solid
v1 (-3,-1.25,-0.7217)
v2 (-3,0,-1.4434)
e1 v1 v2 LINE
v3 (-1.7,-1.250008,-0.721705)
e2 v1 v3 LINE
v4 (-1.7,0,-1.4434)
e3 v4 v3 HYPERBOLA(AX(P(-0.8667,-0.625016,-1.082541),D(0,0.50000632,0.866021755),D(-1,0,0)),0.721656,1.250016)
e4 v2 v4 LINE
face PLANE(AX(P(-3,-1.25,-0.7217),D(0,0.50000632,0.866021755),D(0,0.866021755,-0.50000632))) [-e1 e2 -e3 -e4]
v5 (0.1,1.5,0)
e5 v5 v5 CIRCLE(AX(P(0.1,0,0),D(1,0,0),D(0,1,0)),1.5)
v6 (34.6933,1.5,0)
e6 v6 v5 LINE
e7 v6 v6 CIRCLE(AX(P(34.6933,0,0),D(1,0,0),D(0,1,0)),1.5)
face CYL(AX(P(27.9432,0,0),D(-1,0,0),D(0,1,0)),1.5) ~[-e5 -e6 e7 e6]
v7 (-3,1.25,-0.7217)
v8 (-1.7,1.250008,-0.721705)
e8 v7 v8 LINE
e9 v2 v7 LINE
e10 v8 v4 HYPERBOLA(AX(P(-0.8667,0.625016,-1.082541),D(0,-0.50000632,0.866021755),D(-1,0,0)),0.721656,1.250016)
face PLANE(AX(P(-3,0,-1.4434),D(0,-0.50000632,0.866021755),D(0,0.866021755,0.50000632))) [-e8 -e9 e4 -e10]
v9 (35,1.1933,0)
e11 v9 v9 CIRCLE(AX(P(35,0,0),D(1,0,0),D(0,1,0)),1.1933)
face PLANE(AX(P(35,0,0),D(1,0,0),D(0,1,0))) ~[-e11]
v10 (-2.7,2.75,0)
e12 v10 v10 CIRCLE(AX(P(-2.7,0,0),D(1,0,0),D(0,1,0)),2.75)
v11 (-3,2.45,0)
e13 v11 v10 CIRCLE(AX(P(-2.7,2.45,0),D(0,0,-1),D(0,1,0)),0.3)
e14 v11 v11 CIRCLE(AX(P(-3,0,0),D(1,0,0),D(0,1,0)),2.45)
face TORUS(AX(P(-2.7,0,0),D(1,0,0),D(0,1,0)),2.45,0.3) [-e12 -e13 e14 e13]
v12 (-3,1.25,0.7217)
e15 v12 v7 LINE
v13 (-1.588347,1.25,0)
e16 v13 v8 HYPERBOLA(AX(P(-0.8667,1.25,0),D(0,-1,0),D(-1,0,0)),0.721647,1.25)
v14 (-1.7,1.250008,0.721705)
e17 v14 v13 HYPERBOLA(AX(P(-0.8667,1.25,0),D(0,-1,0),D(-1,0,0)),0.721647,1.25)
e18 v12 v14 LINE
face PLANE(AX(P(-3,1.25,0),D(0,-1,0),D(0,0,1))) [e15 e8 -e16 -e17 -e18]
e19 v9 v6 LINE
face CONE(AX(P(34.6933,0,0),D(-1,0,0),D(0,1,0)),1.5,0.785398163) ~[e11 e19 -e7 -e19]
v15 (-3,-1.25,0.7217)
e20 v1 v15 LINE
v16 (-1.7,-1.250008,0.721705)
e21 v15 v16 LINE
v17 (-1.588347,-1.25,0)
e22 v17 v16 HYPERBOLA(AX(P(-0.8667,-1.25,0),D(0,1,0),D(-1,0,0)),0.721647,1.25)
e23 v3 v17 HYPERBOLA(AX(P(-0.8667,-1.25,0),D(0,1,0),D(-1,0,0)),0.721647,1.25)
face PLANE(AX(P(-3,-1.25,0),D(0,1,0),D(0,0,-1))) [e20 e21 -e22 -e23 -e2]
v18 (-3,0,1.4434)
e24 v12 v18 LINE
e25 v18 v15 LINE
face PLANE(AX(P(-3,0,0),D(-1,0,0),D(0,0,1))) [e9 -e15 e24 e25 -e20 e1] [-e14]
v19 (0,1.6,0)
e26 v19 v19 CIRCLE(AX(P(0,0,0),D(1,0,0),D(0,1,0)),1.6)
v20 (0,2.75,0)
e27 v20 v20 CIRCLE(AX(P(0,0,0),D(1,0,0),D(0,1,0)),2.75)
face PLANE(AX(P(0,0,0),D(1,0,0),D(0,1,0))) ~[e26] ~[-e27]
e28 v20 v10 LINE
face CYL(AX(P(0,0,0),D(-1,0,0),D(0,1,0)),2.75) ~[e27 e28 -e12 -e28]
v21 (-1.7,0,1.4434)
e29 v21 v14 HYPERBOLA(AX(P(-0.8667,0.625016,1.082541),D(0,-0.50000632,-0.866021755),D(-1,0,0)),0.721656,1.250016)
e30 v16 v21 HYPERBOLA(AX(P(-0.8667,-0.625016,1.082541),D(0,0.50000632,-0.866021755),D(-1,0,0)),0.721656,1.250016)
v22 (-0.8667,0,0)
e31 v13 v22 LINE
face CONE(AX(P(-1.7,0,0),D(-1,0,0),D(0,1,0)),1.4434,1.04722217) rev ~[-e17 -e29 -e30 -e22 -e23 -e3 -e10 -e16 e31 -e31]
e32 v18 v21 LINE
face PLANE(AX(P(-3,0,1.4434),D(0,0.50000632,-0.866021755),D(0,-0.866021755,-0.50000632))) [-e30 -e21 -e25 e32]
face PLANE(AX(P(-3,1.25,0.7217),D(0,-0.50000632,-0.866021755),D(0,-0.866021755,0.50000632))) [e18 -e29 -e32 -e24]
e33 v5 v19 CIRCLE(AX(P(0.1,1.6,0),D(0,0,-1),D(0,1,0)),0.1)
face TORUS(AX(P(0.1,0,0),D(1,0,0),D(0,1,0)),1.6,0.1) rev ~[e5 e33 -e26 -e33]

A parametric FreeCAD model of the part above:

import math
import FreeCAD as App
import Part
import Sketcher
from FreeCAD import Vector
Q = App.Units.Quantity


def edges_at(feature, points):
    """Names of the edges that pass closest to the given points."""
    edges = feature.Shape.Edges
    near = lambda p: min(range(len(edges)), key=lambda i: edges[i].distToShape(Part.Vertex(*p))[0])
    return sorted({f"Edge{near(p) + 1}" for p in points})

doc = App.newDocument("Part")
body = doc.addObject("PartDesign::Body", "Body")

sketch1 = body.newObject("Sketcher::SketchObject", "Sketch")
sketch1.AttachmentSupport = (doc.getObject("XY_Plane"), [""])
sketch1.MapMode = "FlatFace"
sketch1.addGeometry([
    Part.LineSegment(Vector(-1.7, 1.4, 0), Vector(-0.9, 0, 0)),
    Part.LineSegment(Vector(-0.9, 0, 0), Vector(35, 0, 0)),
    Part.LineSegment(Vector(35, 0, 0), Vector(35, 1.5, 0)),
    Part.LineSegment(Vector(35, 1.5, 0), Vector(0, 1.5, 0)),
    Part.LineSegment(Vector(0, 1.5, 0), Vector(0, 2.8, 0)),
    Part.LineSegment(Vector(0, 2.8, 0), Vector(-3, 2.8, 0)),
    Part.LineSegment(Vector(-3, 2.8, 0), Vector(-3, 1.4, 0)),
    Part.LineSegment(Vector(-3, 1.4, 0), Vector(-1.7, 1.4, 0)),
], False)
sketch1.addConstraint([
    Sketcher.Constraint("Coincident", 0, 2, 1, 1),
    Sketcher.Constraint("Coincident", 1, 2, 2, 1),
    Sketcher.Constraint("Coincident", 2, 2, 3, 1),
    Sketcher.Constraint("Coincident", 3, 2, 4, 1),
    Sketcher.Constraint("Coincident", 4, 2, 5, 1),
    Sketcher.Constraint("Coincident", 5, 2, 6, 1),
    Sketcher.Constraint("Coincident", 6, 2, 7, 1),
    Sketcher.Constraint("Coincident", 7, 2, 0, 1),
    Sketcher.Constraint("Horizontal", 1),
    Sketcher.Constraint("Vertical", 2),
    Sketcher.Constraint("Horizontal", 3),
    Sketcher.Constraint("Vertical", 4),
    Sketcher.Constraint("Horizontal", 5),
    Sketcher.Constraint("Vertical", 6),
    Sketcher.Constraint("Horizontal", 7),
    Sketcher.Constraint("PointOnObject", 0, 2, -1),
    Sketcher.Constraint("PointOnObject", 3, 2, -2),
    Sketcher.Constraint("DistanceX", 3, 2, 3, 1, Q("35 mm")),
    Sketcher.Constraint("DistanceX", 5, 2, 5, 1, Q("3 mm")),
    Sketcher.Constraint("DistanceX", 7, 1, 7, 2, Q("1.3 mm")),
    Sketcher.Constraint("DistanceY", 2, 1, 2, 2, Q("1.5 mm")),
    Sketcher.Constraint("DistanceY", 4, 1, 4, 2, Q("1.25 mm")),
    Sketcher.Constraint("DistanceX", 1, 1, 1, 2, Q("35.8667 mm")),
    Sketcher.Constraint("DistanceY", 6, 2, 6, 1, Q("1.3066 mm")),
])
revolution = body.newObject("PartDesign::Revolution", "Revolution")
revolution.Profile = sketch1
revolution.ReferenceAxis = (sketch1, ["H_Axis"])
revolution.Angle = 360

sketch2 = body.newObject("Sketcher::SketchObject", "Sketch001")
sketch2.AttachmentSupport = (doc.getObject("YZ_Plane"), [""])
sketch2.MapMode = "FlatFace"
sketch2.AttachmentOffset = App.Placement(Vector(0, 0, -3), App.Rotation())
sketch2.addGeometry([
    Part.LineSegment(Vector(1.2, 0.7, 0), Vector(0, 1.4, 0)),
    Part.ArcOfCircle(Part.Circle(Vector(0, 0, 0), Vector(0, 0, 1), 1.4), math.radians(30), math.radians(90)),
    Part.ArcOfCircle(Part.Circle(Vector(0, 0, 0), Vector(0, 0, 1), 1.4), math.radians(90), math.radians(150)),
    Part.LineSegment(Vector(0, 1.4, 0), Vector(-1.2, 0.7, 0)),
    Part.ArcOfCircle(Part.Circle(Vector(0, 0, 0), Vector(0, 0, 1), 1.4), math.radians(-30), math.radians(30)),
    Part.LineSegment(Vector(1.2, 0.7, 0), Vector(1.2, -0.7, 0)),
    Part.LineSegment(Vector(-1.2, 0.7, 0), Vector(-1.2, -0.7, 0)),
    Part.ArcOfCircle(Part.Circle(Vector(0, 0, 0), Vector(0, 0, 1), 1.4), math.radians(150), math.radians(210)),
    Part.LineSegment(Vector(-1.2, -0.7, 0), Vector(0, -1.4, 0)),
    Part.ArcOfCircle(Part.Circle(Vector(0, 0, 0), Vector(0, 0, 1), 1.4), math.radians(-150), math.radians(-90)),
    Part.ArcOfCircle(Part.Circle(Vector(0, 0, 0), Vector(0, 0, 1), 1.4), math.radians(-90), math.radians(-30)),
    Part.LineSegment(Vector(0, -1.4, 0), Vector(1.2, -0.7, 0)),
], False)
sketch2.addConstraint([
    Sketcher.Constraint("Coincident", 0, 1, 1, 1),
    Sketcher.Constraint("Coincident", 1, 2, 0, 2),
    Sketcher.Constraint("Coincident", 2, 1, 3, 1),
    Sketcher.Constraint("Coincident", 3, 2, 2, 2),
    Sketcher.Constraint("Coincident", 4, 1, 5, 2),
    Sketcher.Constraint("Coincident", 5, 1, 4, 2),
    Sketcher.Constraint("Coincident", 6, 1, 7, 1),
    Sketcher.Constraint("Coincident", 7, 2, 6, 2),
    Sketcher.Constraint("Coincident", 8, 1, 9, 1),
    Sketcher.Constraint("Coincident", 9, 2, 8, 2),
    Sketcher.Constraint("Coincident", 10, 1, 11, 1),
    Sketcher.Constraint("Coincident", 11, 2, 10, 2),
    Sketcher.Constraint("Vertical", 5),
    Sketcher.Constraint("Vertical", 6),
    Sketcher.Constraint("Coincident", 1, 3, -1, 1),
    Sketcher.Constraint("Coincident", 2, 3, -1, 1),
    Sketcher.Constraint("Coincident", 4, 3, -1, 1),
    Sketcher.Constraint("Coincident", 7, 3, -1, 1),
    Sketcher.Constraint("Coincident", 9, 3, -1, 1),
    Sketcher.Constraint("Coincident", 10, 3, -1, 1),
    Sketcher.Constraint("Coincident", 2, 1, 1, 2),
    Sketcher.Constraint("Coincident", 5, 1, 0, 1),
    Sketcher.Constraint("Coincident", 6, 1, 3, 2),
    Sketcher.Constraint("Coincident", 8, 1, 7, 2),
    Sketcher.Constraint("Coincident", 10, 1, 9, 2),
    Sketcher.Constraint("PointOnObject", 1, 2, -2),
    Sketcher.Constraint("PointOnObject", 9, 2, -2),
    Sketcher.Constraint("Parallel", 0, 8),
    Sketcher.Constraint("Parallel", 3, 11),
    Sketcher.Constraint("Angle", 0, Q("149.9996 deg")),
    Sketcher.Constraint("Radius", 1, Q("1.4434 mm")),
])
pad1 = body.newObject("PartDesign::Pad", "Pad")
pad1.Profile = sketch2
pad1.Type = "UpToFirst"
doc.recompute()

fillet = body.newObject("PartDesign::Fillet", "Fillet")
fillet.Base = (pad1, edges_at(pad1, [(-3, -2.75, 0)]))
fillet.Radius = 0.3
doc.recompute()

chamfer = body.newObject("PartDesign::Chamfer", "Chamfer")
chamfer.Base = (fillet, edges_at(fillet, [(35, -1.5, 0)]))
chamfer.ChamferType = "Two distances"
chamfer.Size = 0.3067
chamfer.Size2 = 0.3067
doc.recompute()

fillet2 = body.newObject("PartDesign::Fillet", "Fillet001")
fillet2.Base = (chamfer, edges_at(chamfer, [(0, -1.5, 0)]))
fillet2.Radius = 0.1

doc.recompute()
